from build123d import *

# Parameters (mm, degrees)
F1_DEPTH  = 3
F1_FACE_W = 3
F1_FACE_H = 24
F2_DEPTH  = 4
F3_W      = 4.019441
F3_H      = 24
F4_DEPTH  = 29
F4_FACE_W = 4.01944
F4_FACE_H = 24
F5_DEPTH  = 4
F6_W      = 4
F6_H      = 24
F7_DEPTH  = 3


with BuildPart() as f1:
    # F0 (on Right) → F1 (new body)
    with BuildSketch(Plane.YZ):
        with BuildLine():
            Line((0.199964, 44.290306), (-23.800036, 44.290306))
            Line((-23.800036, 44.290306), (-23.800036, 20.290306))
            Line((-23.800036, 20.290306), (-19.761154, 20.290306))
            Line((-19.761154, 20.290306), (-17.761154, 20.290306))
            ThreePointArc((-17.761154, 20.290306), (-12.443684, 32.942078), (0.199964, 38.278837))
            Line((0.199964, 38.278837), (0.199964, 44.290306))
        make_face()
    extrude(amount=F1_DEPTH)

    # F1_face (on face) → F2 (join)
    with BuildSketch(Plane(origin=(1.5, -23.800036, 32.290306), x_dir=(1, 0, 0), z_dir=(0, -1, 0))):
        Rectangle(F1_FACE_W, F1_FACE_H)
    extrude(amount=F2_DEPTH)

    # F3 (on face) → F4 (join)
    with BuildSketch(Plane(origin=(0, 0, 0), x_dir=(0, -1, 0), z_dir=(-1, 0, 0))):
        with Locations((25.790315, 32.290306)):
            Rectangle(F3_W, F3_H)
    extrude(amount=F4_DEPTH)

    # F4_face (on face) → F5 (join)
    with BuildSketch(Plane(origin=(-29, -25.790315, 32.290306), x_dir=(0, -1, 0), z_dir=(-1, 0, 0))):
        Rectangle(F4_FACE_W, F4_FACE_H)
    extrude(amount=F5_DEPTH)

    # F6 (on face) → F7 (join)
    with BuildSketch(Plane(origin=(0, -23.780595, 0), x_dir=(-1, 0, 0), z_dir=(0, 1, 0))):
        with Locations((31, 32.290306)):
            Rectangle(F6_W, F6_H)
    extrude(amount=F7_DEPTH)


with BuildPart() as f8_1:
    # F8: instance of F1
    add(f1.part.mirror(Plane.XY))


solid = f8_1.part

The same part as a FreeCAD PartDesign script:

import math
import FreeCAD as App
import Part
import Sketcher

V = App.Vector
Q = App.Units.Quantity


def add_polygon(sketch, points):
    """Adds a closed chain of lines whose ends are joined by coincident constraints."""
    first, n = sketch.GeometryCount, len(points)
    for a, b in zip(points, points[1:] + points[:1]):
        sketch.addGeometry(Part.LineSegment(App.Vector(*a, 0), App.Vector(*b, 0)), False)
    for i in range(n):
        sketch.addConstraint(Sketcher.Constraint("Coincident", first + i, 2, first + (i + 1) % n, 1))

doc = App.newDocument("Part")
body = doc.addObject("PartDesign::Body", "Body")

# Sketch on YZ plane
sketch1 = body.newObject("Sketcher::SketchObject", "Sketch")
sketch1.AttachmentSupport = (doc.getObject("YZ_Plane"), [""])
sketch1.MapMode = "FlatFace"
sketch1.addGeometry(Part.LineSegment(V(0, 44, 0), V(-24, 44, 0)), False)
sketch1.addGeometry(Part.LineSegment(V(-24, 44, 0), V(-24, 20, 0)), False)
sketch1.addGeometry(Part.LineSegment(V(-24, 20, 0), V(-18, 20, 0)), False)
sketch1.addGeometry(Part.ArcOfCircle(Part.Circle(V(0, 20, 0), V(0, 0, 1), 18), math.radians(91), math.radians(179)), False)
sketch1.addGeometry(Part.LineSegment(V(0, 38, 0), V(0, 44, 0)), False)
sketch1.addConstraint(Sketcher.Constraint("Coincident", 0, 2, 1, 1))
sketch1.addConstraint(Sketcher.Constraint("Coincident", 1, 2, 2, 1))
sketch1.addConstraint(Sketcher.Constraint("Coincident", 2, 2, 3, 2))
sketch1.addConstraint(Sketcher.Constraint("Coincident", 3, 1, 4, 1))
sketch1.addConstraint(Sketcher.Constraint("Coincident", 4, 2, 0, 1))
sketch1.addConstraint(Sketcher.Constraint("Horizontal", 0))
sketch1.addConstraint(Sketcher.Constraint("Vertical", 1))
sketch1.addConstraint(Sketcher.Constraint("Horizontal", 2))
sketch1.addConstraint(Sketcher.Constraint("Vertical", 4))
sketch1.addConstraint(Sketcher.Constraint("Equal", 0, 1))
sketch1.addConstraint(Sketcher.Constraint("DistanceX", 0, 2, 0, 1, Q("24 mm")))
sketch1.addConstraint(Sketcher.Constraint("Radius", 3, Q("18.192297 mm")))
sketch1.addConstraint(Sketcher.Constraint("DistanceX", 2, 1, 2, 2, Q("6.038882 mm")))
sketch1.addConstraint(Sketcher.Constraint("DistanceY", 4, 1, 4, 2, Q("6.011469 mm")))
sketch1.addConstraint(Sketcher.Constraint("DistanceX", -1, 1, 3, 3, Q("0.430019 mm")))
sketch1.addConstraint(Sketcher.Constraint("DistanceY", -1, 1, 3, 3, Q("20.087994 mm")))
pad1 = body.newObject("PartDesign::Pad", "Pad")
pad1.Profile = sketch1
pad1.Length = 3

# Sketch on XZ plane
sketch2 = body.newObject("Sketcher::SketchObject", "Sketch001")
sketch2.AttachmentSupport = (doc.getObject("XZ_Plane"), [""])
sketch2.MapMode = "FlatFace"
sketch2.AttachmentOffset = App.Placement(V(0, 0, 23.800036), App.Rotation())
add_polygon(sketch2, [(0, 44.3), (0, 20.3), (3, 20.3), (3, 44.3)])  # lines 0-3
sketch2.addConstraint(Sketcher.Constraint("Vertical", 0))
sketch2.addConstraint(Sketcher.Constraint("Horizontal", 1))
sketch2.addConstraint(Sketcher.Constraint("Vertical", 2))
sketch2.addConstraint(Sketcher.Constraint("Horizontal", 3))
sketch2.addConstraint(Sketcher.Constraint("PointOnObject", 0, 2, -2))
sketch2.addConstraint(Sketcher.Constraint("DistanceX", 1, 1, 1, 2, Q("3 mm")))
sketch2.addConstraint(Sketcher.Constraint("DistanceY", 0, 2, 0, 1, Q("24 mm")))
sketch2.addConstraint(Sketcher.Constraint("DistanceY", -1, 1, 0, 2, Q("20.290306 mm")))
pad2 = body.newObject("PartDesign::Pad", "Pad001")
pad2.Profile = sketch2
pad2.Length = 4

# Sketch on YZ plane
sketch3 = body.newObject("Sketcher::SketchObject", "Sketch002")
sketch3.AttachmentSupport = (doc.getObject("YZ_Plane"), [""])
sketch3.MapMode = "FlatFace"
add_polygon(sketch3, [(-23.8, 44.3), (-23.8, 20.3), (-27.8, 20.3), (-27.8, 44.3)])  # lines 0-3
sketch3.addConstraint(Sketcher.Constraint("Vertical", 0))
sketch3.addConstraint(Sketcher.Constraint("Horizontal", 1))
sketch3.addConstraint(Sketcher.Constraint("Vertical", 2))
sketch3.addConstraint(Sketcher.Constraint("Horizontal", 3))
sketch3.addConstraint(Sketcher.Constraint("DistanceY", 0, 2, 0, 1, Q("24 mm")))
sketch3.addConstraint(Sketcher.Constraint("DistanceX", 1, 2, 1, 1, Q("4.019441 mm")))
sketch3.addConstraint(Sketcher.Constraint("DistanceX", 0, 2, -1, 1, Q("23.780594 mm")))
sketch3.addConstraint(Sketcher.Constraint("DistanceY", -1, 1, 0, 2, Q("20.290306 mm")))
pad3 = body.newObject("PartDesign::Pad", "Pad002")
pad3.Profile = sketch3
pad3.Length = 29
pad3.Reversed = True

# Sketch on YZ plane
sketch4 = body.newObject("Sketcher::SketchObject", "Sketch003")
sketch4.AttachmentSupport = (doc.getObject("YZ_Plane"), [""])
sketch4.MapMode = "FlatFace"
sketch4.AttachmentOffset = App.Placement(V(0, 0, -29), App.Rotation())
add_polygon(sketch4, [(-23.8, 44.3), (-23.8, 20.3), (-27.8, 20.3), (-27.8, 44.3)])  # lines 0-3
sketch4.addConstraint(Sketcher.Constraint("Vertical", 0))
sketch4.addConstraint(Sketcher.Constraint("Horizontal", 1))
sketch4.addConstraint(Sketcher.Constraint("Vertical", 2))
sketch4.addConstraint(Sketcher.Constraint("Horizontal", 3))
sketch4.addConstraint(Sketcher.Constraint("DistanceY", 0, 2, 0, 1, Q("24 mm")))
sketch4.addConstraint(Sketcher.Constraint("DistanceX", 1, 2, 1, 1, Q("4.01944 mm")))
sketch4.addConstraint(Sketcher.Constraint("DistanceX", 0, 2, -1, 1, Q("23.780595 mm")))
sketch4.addConstraint(Sketcher.Constraint("DistanceY", -1, 1, 0, 2, Q("20.290306 mm")))
pad4 = body.newObject("PartDesign::Pad", "Pad003")
pad4.Profile = sketch4
pad4.Length = 4
pad4.Reversed = True

# Sketch on XZ plane
sketch5 = body.newObject("Sketcher::SketchObject", "Sketch004")
sketch5.AttachmentSupport = (doc.getObject("XZ_Plane"), [""])
sketch5.MapMode = "FlatFace"
sketch5.AttachmentOffset = App.Placement(V(0, 0, 23.780595), App.Rotation())
add_polygon(sketch5, [(-29, 44.3), (-29, 20.3), (-33, 20.3), (-33, 44.3)])  # lines 0-3
sketch5.addConstraint(Sketcher.Constraint("Vertical", 0))
sketch5.addConstraint(Sketcher.Constraint("Horizontal", 1))
sketch5.addConstraint(Sketcher.Constraint("Vertical", 2))
sketch5.addConstraint(Sketcher.Constraint("Horizontal", 3))
sketch5.addConstraint(Sketcher.Constraint("DistanceX", 1, 2, 1, 1, Q("4 mm")))
sketch5.addConstraint(Sketcher.Constraint("DistanceY", 0, 2, 0, 1, Q("24 mm")))
sketch5.addConstraint(Sketcher.Constraint("DistanceX", 0, 2, -1, 1, Q("29 mm")))
sketch5.addConstraint(Sketcher.Constraint("DistanceY", -1, 1, 0, 2, Q("20.290306 mm")))
pad5 = body.newObject("PartDesign::Pad", "Pad004")
pad5.Profile = sketch5
pad5.Length = 3
pad5.Reversed = True
body2 = doc.addObject("PartDesign::Body", "Body001")
doc.recompute()

mirroring = doc.addObject("Part::Mirroring", "Mirroring")
mirroring.Source = body
mirroring.Base = V(0, 0, 0)
mirroring.Normal = V(0, 0, 1)
body2.BaseFeature = mirroring
doc.recompute()
body.Visibility = False
mirroring.Visibility = False

doc.recompute()
